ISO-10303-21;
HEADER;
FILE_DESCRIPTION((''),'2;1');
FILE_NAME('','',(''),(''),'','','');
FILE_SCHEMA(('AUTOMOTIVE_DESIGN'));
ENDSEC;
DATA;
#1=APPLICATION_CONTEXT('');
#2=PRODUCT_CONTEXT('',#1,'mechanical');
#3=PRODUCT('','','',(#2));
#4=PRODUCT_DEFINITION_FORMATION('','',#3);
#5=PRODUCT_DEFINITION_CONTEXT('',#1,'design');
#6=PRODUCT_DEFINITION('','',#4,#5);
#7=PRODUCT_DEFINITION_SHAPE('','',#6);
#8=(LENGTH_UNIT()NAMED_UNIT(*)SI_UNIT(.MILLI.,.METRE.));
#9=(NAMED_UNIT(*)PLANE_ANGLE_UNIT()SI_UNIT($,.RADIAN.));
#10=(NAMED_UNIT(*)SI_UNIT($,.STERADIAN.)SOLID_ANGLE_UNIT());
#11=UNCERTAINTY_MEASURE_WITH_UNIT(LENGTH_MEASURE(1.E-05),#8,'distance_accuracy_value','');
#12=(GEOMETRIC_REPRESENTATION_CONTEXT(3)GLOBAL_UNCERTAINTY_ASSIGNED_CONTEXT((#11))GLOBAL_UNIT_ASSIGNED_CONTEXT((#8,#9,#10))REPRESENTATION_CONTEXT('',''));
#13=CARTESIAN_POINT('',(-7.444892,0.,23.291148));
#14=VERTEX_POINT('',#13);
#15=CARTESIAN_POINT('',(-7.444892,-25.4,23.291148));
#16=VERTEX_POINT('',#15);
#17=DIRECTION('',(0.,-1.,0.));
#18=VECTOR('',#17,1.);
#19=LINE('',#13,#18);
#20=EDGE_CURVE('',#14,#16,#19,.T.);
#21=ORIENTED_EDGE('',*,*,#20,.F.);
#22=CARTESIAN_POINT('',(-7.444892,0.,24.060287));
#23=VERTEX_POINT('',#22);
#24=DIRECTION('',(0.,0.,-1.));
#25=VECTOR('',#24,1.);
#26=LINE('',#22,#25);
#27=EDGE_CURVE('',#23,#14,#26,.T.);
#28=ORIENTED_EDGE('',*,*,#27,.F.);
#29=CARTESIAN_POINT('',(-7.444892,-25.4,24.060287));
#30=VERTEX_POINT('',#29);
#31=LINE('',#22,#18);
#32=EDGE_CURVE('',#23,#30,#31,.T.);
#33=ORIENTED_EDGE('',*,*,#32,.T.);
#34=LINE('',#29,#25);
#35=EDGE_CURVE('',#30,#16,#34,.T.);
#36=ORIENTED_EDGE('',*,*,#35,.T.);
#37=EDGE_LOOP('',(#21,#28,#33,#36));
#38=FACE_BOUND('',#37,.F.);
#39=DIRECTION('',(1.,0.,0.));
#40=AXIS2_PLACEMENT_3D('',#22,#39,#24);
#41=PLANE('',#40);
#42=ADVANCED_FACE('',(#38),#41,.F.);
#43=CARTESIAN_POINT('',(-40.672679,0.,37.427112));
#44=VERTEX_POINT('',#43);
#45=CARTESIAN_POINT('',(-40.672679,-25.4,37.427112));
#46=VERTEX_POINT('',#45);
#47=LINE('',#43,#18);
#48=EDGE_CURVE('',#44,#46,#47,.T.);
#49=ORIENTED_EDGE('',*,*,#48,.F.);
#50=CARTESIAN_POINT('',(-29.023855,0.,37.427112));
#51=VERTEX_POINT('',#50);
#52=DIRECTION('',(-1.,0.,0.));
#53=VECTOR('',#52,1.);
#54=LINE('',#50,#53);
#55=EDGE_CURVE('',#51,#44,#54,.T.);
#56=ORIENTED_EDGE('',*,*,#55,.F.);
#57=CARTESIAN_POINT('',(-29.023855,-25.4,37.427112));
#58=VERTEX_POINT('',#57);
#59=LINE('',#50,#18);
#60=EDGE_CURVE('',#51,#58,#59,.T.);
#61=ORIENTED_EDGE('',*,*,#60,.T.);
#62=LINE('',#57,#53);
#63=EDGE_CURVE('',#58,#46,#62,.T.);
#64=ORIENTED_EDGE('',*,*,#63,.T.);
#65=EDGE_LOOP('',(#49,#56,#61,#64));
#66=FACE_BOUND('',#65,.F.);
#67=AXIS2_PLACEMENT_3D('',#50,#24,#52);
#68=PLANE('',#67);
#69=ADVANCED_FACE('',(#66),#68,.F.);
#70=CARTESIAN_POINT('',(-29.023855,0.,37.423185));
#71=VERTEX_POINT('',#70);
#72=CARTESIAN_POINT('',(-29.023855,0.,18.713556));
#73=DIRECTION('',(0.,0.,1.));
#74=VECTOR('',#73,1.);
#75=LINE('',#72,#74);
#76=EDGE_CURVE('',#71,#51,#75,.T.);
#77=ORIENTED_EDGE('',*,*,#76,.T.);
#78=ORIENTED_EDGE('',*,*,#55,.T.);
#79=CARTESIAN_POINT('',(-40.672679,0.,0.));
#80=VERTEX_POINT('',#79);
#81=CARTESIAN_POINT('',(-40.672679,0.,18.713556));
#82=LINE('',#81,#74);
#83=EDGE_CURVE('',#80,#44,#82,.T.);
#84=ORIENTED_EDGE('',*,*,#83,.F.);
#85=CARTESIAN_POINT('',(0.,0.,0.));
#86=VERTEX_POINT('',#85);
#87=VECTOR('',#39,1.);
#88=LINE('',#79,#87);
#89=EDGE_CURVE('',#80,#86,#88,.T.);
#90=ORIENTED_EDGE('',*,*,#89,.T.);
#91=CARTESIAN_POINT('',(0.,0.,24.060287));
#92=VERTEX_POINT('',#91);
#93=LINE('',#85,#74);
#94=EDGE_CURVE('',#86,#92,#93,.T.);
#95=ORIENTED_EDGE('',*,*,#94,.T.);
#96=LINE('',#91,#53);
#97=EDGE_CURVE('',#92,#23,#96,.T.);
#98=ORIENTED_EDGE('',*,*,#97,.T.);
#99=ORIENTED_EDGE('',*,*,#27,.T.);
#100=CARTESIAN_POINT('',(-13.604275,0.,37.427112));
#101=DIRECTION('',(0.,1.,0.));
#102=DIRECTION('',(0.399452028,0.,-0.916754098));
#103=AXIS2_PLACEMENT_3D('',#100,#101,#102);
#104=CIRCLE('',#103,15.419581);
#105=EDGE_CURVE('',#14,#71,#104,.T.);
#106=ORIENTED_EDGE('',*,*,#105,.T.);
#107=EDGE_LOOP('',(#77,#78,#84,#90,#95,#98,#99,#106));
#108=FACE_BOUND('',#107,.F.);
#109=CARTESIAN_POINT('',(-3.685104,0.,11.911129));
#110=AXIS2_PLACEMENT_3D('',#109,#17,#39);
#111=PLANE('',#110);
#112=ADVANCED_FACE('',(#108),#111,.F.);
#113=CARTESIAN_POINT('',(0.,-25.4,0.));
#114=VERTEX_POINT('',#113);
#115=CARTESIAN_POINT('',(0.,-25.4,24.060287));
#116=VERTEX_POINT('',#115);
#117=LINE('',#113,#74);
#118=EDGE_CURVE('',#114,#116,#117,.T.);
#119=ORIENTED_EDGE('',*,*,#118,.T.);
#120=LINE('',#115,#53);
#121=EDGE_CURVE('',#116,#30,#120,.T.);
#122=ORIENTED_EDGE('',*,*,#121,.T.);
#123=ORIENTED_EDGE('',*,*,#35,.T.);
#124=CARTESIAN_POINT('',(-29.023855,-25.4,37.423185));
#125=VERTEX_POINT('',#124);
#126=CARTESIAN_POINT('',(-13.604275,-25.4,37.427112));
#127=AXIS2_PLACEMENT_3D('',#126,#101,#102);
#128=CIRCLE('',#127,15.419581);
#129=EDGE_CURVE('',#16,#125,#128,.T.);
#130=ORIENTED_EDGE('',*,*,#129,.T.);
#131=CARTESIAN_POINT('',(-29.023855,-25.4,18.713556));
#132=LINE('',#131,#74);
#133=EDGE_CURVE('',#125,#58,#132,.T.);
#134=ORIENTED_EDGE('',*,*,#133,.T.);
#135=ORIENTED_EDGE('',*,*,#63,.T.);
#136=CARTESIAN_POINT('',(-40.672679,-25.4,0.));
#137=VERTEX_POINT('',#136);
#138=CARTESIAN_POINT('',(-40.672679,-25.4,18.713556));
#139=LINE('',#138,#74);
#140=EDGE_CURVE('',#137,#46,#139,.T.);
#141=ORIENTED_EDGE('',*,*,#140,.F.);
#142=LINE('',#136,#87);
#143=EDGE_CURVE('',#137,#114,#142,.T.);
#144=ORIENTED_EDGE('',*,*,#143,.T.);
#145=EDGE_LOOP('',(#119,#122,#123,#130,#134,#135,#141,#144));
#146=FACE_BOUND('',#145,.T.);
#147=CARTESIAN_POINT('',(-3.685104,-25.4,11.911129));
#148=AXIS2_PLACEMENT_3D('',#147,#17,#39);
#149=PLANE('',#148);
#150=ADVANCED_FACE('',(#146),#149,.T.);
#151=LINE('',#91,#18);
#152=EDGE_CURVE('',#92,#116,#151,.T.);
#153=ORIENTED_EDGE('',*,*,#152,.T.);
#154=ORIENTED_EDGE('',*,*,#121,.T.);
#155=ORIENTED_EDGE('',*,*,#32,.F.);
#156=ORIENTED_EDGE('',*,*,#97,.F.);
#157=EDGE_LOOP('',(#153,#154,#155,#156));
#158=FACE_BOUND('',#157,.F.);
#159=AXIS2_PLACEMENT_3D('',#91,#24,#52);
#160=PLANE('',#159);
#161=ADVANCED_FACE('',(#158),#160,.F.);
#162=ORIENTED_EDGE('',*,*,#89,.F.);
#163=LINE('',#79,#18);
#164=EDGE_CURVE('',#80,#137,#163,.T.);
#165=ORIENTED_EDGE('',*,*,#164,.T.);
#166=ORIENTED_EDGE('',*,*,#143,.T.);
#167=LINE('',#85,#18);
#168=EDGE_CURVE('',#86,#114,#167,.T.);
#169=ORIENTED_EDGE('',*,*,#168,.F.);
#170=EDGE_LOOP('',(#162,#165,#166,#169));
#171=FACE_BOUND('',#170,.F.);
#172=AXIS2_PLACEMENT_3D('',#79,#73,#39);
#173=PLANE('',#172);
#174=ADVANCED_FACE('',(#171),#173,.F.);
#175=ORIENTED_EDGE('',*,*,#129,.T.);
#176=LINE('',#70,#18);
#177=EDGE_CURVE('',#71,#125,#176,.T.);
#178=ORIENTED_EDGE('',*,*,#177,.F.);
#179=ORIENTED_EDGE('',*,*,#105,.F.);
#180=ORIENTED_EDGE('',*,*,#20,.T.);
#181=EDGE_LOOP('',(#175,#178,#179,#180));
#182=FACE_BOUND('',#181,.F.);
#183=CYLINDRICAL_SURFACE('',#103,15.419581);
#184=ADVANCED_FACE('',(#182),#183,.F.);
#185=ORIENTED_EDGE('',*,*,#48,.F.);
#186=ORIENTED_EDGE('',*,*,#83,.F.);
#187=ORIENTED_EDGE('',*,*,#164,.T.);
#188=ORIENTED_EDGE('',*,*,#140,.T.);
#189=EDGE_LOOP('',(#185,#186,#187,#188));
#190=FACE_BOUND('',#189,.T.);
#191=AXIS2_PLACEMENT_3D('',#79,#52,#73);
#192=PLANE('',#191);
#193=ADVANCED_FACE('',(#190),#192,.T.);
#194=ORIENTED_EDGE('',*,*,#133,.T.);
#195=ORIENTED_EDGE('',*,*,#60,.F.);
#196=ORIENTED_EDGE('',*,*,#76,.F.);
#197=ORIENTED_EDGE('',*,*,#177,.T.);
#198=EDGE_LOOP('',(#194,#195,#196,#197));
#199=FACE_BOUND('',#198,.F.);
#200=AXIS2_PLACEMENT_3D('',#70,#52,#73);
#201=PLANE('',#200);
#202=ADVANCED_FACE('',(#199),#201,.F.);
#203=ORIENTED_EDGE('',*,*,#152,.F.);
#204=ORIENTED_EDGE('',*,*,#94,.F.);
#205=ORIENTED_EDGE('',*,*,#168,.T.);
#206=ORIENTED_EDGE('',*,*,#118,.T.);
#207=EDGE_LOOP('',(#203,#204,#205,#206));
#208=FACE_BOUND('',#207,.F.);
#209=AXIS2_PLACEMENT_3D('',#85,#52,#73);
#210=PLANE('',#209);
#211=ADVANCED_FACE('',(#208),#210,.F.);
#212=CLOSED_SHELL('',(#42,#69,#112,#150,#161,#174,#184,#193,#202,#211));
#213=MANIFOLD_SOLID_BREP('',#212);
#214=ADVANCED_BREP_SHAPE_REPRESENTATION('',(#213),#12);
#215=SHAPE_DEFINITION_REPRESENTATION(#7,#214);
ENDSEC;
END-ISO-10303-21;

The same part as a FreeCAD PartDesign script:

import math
import FreeCAD as App
import Part
import Sketcher

V = App.Vector
Q = App.Units.Quantity

doc = App.newDocument("Part")
params = doc.addObject("Spreadsheet::Sheet", "Params")
for row, (alias, value) in enumerate([
    ("pad1_length", "1 in"),
], start=1):
    params.set(f"A{row}", alias)
    params.set(f"B{row}", "=" + value)
    params.setAlias(f"B{row}", alias)

body = doc.addObject("PartDesign::Body", "Body")

# Sketch on XZ plane
sketch1 = body.newObject("Sketcher::SketchObject", "Sketch")
sketch1.AttachmentSupport = (doc.getObject("XZ_Plane"), [""])
sketch1.MapMode = "FlatFace"
sketch1.addGeometry(Part.LineSegment(V(0, 0, 0), V(0, 24.0603, 0)), False)
sketch1.addGeometry(Part.LineSegment(V(0, 24.0603, 0), V(-7.4449, 24.0603, 0)), False)
sketch1.addGeometry(Part.LineSegment(V(-7.4449, 24.0603, 0), V(-7.4449, 23.2911, 0)), False)
sketch1.addGeometry(Part.ArcOfCircle(Part.Circle(V(-13.6043, 37.4271, 0), V(0, 0, 1), 15.4196), math.radians(-180), math.radians(-66)), False)
sketch1.addGeometry(Part.LineSegment(V(-29.0239, 37.4232, 0), V(-29.0239, 37.4271, 0)), False)
sketch1.addGeometry(Part.LineSegment(V(-29.0239, 37.4271, 0), V(-40.6727, 37.4271, 0)), False)
sketch1.addGeometry(Part.LineSegment(V(-40.6727, 37.4271, 0), V(-40.6727, 0, 0)), False)
sketch1.addGeometry(Part.LineSegment(V(-40.6727, 0, 0), V(0, 0, 0)), False)
sketch1.addConstraint(Sketcher.Constraint("Coincident", 0, 2, 1, 1))
sketch1.addConstraint(Sketcher.Constraint("Coincident", 1, 2, 2, 1))
sketch1.addConstraint(Sketcher.Constraint("Coincident", 2, 2, 3, 2))
sketch1.addConstraint(Sketcher.Constraint("Coincident", 3, 1, 4, 1))
sketch1.addConstraint(Sketcher.Constraint("Coincident", 4, 2, 5, 1))
sketch1.addConstraint(Sketcher.Constraint("Coincident", 5, 2, 6, 1))
sketch1.addConstraint(Sketcher.Constraint("Coincident", 6, 2, 7, 1))
sketch1.addConstraint(Sketcher.Constraint("Coincident", 7, 2, 0, 1))
sketch1.addConstraint(Sketcher.Constraint("Vertical", 0))
sketch1.addConstraint(Sketcher.Constraint("Horizontal", 1))
sketch1.addConstraint(Sketcher.Constraint("Vertical", 2))
sketch1.addConstraint(Sketcher.Constraint("Vertical", 4))
sketch1.addConstraint(Sketcher.Constraint("Horizontal", 5))
sketch1.addConstraint(Sketcher.Constraint("Vertical", 6))
sketch1.addConstraint(Sketcher.Constraint("Horizontal", 7))
sketch1.addConstraint(Sketcher.Constraint("Coincident", 7, 2, -1, 1))
sketch1.addConstraint(Sketcher.Constraint("Horizontal", 3, 3, 4, 2))
sketch1.addConstraint(Sketcher.Constraint("Radius", 3, Q("15.419581 mm")))
sketch1.addConstraint(Sketcher.Constraint("DistanceX", 7, 1, 7, 2, Q("40.672679 mm")))
sketch1.addConstraint(Sketcher.Constraint("DistanceY", 2, 2, 2, 1, Q("0.769139 mm")))
sketch1.addConstraint(Sketcher.Constraint("DistanceY", 1, 2, 3, 1, Q("13.362898 mm")))
sketch1.addConstraint(Sketcher.Constraint("DistanceX", 1, 2, 1, 1, Q("7.444892 mm")))
sketch1.addConstraint(Sketcher.Constraint("DistanceX", 5, 2, 5, 1, Q("11.648823 mm")))
sketch1.addConstraint(Sketcher.Constraint("DistanceY", 0, 1, 0, 2, Q("24.060287 mm")))
pad1 = body.newObject("PartDesign::Pad", "Pad")
pad1.Profile = sketch1
pad1.setExpression("Length", "Params.pad1_length")

doc.recompute()
